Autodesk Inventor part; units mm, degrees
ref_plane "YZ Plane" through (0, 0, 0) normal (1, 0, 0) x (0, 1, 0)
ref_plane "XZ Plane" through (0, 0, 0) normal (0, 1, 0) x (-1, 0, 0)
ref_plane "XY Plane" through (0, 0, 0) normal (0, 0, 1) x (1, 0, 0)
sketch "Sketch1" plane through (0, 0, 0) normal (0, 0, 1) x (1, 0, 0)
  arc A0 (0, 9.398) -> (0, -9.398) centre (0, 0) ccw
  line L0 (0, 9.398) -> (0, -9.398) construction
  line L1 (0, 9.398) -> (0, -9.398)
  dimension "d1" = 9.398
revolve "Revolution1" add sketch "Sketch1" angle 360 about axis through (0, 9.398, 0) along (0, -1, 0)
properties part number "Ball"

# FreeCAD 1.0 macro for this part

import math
import FreeCAD as App
import Part
import Sketcher

V = App.Vector
Q = App.Units.Quantity

doc = App.newDocument("Part")
body = doc.addObject("PartDesign::Body", "Body")

sketch1 = body.newObject("Sketcher::SketchObject", "Sketch")
sketch1.AttachmentSupport = (doc.getObject("XY_Plane"), [""])
sketch1.MapMode = "FlatFace"
sketch1.addGeometry(Part.LineSegment(V(0, -9, 0), V(0, 9, 0)), False)
sketch1.addGeometry(Part.ArcOfCircle(Part.Circle(V(0, 0, 0), V(0, 0, 1), 9), math.radians(90), math.radians(270)), False)
sketch1.addConstraint(Sketcher.Constraint("Coincident", 0, 1, 1, 2))
sketch1.addConstraint(Sketcher.Constraint("Coincident", 1, 1, 0, 2))
sketch1.addConstraint(Sketcher.Constraint("Vertical", 0))
sketch1.addConstraint(Sketcher.Constraint("Coincident", 1, 3, -1, 1))
sketch1.addConstraint(Sketcher.Constraint("PointOnObject", 0, 1, -2))
sketch1.addConstraint(Sketcher.Constraint("Radius", 1, Q("0.37 in")))
revolution = body.newObject("PartDesign::Revolution", "Revolution")
revolution.Profile = sketch1
revolution.ReferenceAxis = (sketch1, ["V_Axis"])
revolution.Angle = 360

doc.recompute()
